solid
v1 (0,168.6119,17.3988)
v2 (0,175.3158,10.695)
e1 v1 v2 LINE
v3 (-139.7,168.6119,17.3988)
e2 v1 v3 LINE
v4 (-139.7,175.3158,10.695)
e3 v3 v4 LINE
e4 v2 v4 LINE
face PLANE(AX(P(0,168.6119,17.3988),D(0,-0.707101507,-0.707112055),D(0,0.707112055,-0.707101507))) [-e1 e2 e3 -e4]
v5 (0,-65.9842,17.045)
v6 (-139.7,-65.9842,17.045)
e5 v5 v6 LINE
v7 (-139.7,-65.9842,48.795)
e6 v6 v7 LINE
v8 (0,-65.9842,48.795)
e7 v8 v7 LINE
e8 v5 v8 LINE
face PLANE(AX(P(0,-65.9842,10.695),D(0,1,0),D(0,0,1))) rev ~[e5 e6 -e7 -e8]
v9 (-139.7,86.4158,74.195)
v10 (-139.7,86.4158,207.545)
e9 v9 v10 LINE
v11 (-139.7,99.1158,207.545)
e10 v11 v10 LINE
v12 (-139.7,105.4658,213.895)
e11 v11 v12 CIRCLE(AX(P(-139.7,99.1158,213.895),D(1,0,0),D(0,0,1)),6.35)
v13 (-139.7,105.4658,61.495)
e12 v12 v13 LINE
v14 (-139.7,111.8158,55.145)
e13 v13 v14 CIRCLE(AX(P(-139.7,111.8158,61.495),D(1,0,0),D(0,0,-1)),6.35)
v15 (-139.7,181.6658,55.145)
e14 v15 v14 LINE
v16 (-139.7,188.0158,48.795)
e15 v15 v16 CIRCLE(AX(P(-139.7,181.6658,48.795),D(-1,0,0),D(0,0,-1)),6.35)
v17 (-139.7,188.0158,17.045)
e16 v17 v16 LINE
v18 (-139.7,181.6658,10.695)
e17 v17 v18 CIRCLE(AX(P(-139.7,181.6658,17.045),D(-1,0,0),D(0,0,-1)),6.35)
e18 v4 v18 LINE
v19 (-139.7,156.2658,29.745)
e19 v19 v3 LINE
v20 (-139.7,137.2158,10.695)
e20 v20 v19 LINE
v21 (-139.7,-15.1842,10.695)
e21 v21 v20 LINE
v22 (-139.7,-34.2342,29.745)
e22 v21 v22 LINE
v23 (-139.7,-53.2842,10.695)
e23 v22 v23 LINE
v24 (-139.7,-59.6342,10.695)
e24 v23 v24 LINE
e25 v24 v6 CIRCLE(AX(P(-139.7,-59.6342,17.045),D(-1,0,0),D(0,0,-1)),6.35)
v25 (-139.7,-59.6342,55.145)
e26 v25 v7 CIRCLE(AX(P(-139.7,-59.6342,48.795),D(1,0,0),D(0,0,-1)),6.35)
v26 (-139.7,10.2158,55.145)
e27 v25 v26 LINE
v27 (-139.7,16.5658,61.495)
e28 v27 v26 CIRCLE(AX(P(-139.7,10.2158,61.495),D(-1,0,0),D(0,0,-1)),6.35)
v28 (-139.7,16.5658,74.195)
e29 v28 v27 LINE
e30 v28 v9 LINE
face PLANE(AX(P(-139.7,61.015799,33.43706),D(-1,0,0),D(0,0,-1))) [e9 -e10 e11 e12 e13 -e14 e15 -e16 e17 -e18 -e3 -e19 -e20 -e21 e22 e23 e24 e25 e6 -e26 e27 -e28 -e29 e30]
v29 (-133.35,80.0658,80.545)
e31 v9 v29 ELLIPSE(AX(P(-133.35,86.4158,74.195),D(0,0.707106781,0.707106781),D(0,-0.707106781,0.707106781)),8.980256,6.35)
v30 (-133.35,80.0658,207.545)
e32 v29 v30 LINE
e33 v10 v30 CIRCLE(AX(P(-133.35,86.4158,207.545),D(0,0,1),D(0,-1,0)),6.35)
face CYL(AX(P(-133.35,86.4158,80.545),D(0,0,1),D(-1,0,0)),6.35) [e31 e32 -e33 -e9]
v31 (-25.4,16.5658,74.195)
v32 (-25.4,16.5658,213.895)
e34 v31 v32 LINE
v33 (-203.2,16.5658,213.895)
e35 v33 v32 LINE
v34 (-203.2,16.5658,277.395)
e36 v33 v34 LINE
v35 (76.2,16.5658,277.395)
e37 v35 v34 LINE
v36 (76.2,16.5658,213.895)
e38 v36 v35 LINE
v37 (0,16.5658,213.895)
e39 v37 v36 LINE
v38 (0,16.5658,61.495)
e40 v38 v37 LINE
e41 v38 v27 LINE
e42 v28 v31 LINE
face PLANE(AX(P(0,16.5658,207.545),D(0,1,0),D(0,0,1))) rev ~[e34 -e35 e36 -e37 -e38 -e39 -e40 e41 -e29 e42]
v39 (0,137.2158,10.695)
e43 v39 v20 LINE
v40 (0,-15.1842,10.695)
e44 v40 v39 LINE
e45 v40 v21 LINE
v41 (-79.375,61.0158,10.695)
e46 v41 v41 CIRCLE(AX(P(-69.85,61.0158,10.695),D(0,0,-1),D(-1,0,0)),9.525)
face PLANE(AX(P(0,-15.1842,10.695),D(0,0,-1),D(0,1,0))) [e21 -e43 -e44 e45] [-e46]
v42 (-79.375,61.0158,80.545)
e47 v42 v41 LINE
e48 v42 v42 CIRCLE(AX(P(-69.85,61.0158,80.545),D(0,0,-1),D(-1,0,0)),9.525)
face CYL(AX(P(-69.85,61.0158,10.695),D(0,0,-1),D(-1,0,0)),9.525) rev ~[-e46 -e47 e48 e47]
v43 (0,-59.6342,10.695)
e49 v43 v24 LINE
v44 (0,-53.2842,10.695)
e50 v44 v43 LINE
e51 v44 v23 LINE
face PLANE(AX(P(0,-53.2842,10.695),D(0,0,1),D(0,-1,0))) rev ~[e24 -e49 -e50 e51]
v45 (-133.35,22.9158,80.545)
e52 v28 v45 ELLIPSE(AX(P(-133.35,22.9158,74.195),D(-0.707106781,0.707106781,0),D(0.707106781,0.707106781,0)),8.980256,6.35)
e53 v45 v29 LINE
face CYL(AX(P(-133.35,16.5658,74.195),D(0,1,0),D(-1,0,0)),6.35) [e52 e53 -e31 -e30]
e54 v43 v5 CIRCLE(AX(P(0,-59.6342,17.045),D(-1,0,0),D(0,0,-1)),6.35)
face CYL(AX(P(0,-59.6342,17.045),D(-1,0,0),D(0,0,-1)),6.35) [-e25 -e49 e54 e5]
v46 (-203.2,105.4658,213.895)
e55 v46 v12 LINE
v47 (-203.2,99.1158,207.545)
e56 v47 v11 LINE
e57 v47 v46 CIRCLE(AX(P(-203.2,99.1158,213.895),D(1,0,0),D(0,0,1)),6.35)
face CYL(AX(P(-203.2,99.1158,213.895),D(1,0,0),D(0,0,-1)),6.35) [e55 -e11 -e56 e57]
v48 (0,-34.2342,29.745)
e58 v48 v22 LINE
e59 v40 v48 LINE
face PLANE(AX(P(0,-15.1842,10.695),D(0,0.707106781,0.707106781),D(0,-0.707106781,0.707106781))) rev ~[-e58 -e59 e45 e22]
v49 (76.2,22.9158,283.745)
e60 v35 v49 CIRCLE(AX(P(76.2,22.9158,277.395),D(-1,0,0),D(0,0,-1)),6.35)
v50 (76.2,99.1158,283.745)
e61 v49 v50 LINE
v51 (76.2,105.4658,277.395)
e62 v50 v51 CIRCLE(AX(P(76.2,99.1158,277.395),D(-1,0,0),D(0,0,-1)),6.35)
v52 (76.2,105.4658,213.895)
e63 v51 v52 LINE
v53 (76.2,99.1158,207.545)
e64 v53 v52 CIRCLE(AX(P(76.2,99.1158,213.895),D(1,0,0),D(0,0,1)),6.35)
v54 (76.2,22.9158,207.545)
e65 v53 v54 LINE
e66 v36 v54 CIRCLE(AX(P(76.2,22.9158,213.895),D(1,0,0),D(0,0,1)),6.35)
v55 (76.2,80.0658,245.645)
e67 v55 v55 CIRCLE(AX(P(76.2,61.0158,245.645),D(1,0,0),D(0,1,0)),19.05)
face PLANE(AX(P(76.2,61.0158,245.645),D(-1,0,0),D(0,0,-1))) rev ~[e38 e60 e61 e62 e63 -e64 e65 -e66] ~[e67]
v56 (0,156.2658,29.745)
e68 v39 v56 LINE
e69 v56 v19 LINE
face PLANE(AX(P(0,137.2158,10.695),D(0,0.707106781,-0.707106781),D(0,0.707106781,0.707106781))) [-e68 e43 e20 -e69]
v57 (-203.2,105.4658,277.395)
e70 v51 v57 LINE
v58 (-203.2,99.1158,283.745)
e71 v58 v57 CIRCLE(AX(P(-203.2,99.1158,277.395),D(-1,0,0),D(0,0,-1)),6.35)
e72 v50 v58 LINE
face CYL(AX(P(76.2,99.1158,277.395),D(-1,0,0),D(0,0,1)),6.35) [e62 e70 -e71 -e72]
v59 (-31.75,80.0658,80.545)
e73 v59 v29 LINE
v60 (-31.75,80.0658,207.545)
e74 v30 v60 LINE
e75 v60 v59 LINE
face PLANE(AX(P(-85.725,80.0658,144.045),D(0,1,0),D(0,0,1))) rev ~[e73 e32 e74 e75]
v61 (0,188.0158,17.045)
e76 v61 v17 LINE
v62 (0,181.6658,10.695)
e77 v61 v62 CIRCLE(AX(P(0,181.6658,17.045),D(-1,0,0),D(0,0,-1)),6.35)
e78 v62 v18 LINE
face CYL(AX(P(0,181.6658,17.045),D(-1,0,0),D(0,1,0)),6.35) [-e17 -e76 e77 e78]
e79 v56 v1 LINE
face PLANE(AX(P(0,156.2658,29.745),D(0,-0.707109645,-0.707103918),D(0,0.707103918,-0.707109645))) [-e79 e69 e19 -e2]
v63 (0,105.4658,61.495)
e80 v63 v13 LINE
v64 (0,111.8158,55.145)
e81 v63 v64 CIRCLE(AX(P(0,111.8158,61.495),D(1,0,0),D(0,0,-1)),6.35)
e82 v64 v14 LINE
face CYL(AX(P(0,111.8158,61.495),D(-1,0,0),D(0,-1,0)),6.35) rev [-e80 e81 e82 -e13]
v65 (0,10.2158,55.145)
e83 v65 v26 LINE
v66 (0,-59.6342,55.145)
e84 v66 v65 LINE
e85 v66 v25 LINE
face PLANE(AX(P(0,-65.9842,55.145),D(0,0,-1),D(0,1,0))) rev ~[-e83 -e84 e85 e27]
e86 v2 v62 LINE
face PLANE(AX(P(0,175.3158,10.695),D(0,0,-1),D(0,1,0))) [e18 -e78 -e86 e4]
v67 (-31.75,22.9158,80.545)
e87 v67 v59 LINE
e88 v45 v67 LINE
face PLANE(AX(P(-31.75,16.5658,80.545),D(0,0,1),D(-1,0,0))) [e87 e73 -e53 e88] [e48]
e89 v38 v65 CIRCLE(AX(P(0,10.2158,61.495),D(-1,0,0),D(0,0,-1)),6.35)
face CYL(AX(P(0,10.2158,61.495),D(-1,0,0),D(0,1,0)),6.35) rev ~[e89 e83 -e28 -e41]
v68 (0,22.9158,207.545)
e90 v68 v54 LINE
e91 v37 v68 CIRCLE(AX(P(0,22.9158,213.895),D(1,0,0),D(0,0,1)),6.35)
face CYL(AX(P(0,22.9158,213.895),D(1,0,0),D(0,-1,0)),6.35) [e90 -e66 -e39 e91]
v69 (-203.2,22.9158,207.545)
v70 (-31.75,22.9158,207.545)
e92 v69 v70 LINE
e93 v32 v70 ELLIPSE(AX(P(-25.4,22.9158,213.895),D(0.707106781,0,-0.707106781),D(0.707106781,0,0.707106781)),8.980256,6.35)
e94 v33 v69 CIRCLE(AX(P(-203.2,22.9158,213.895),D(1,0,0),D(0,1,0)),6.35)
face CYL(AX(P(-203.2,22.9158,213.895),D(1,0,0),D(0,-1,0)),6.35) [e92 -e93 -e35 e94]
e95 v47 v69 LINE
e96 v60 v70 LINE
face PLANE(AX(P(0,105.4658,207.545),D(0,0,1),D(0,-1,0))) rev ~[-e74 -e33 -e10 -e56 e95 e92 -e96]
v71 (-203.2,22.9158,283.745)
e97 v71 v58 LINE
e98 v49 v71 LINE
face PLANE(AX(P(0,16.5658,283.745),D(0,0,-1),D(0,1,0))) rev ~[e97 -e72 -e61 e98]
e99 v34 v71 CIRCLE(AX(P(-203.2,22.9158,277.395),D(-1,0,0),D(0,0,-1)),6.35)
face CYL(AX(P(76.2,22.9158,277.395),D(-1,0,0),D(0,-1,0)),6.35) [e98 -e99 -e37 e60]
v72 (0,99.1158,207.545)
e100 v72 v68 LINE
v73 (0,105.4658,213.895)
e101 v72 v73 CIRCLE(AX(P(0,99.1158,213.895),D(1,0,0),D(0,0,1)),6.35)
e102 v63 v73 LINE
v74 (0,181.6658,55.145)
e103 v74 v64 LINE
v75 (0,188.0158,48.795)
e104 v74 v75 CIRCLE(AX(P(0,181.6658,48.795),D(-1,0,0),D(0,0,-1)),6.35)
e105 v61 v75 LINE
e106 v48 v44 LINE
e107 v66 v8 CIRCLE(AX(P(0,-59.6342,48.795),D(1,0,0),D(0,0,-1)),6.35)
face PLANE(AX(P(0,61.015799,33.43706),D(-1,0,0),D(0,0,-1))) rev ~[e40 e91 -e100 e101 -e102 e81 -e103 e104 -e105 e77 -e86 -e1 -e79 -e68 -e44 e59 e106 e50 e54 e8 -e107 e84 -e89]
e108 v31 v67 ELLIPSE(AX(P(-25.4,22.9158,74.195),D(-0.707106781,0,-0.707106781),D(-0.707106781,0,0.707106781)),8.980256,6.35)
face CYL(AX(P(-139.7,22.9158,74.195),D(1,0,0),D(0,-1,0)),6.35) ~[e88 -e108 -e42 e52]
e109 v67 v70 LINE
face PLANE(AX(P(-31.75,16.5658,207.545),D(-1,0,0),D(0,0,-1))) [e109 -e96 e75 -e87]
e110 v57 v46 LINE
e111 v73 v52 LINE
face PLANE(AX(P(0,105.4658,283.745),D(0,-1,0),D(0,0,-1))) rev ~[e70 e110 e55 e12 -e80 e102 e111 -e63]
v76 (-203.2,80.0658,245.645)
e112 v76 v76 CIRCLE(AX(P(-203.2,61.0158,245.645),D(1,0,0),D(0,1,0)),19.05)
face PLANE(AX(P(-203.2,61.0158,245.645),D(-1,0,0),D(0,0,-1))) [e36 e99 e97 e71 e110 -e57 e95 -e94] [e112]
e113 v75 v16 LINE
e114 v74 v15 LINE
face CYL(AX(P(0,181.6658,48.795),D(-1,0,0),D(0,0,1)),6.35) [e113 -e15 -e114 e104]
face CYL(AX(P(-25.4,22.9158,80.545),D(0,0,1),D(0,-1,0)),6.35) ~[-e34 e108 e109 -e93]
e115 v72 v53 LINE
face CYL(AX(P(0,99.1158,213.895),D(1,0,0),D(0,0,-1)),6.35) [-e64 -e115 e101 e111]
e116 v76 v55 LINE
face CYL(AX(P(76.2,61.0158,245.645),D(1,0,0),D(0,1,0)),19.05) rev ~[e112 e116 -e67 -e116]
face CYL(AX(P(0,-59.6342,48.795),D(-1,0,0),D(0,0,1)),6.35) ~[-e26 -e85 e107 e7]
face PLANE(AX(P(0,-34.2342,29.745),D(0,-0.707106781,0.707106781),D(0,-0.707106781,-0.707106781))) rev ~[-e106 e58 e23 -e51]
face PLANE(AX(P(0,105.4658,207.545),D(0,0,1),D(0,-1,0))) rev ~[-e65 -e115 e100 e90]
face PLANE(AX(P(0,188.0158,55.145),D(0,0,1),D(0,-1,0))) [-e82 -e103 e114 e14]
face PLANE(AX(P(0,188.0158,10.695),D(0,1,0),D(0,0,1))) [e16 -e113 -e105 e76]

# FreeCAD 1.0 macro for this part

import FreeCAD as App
import Part
import Sketcher
from FreeCAD import Vector
Q = App.Units.Quantity


def edges_at(feature, points):
    """Names of the edges that pass closest to the given points."""
    edges = feature.Shape.Edges
    near = lambda p: min(range(len(edges)), key=lambda i: edges[i].distToShape(Part.Vertex(*p))[0])
    return sorted({f"Edge{near(p) + 1}" for p in points})

doc = App.newDocument("Part")
body = doc.addObject("PartDesign::Body", "Body")

sketch1 = body.newObject("Sketcher::SketchObject", "Sketch")
sketch1.AttachmentSupport = (doc.getObject("YZ_Plane"), [""])
sketch1.MapMode = "FlatFace"
sketch1.addGeometry(Part.LineSegment(Vector(188.0158, 55.145, 0), Vector(-65.9842, 55.145, 0)), False)
sketch1.addGeometry(Part.LineSegment(Vector(-65.9842, 55.145, 0), Vector(-65.9842, 10.695, 0)), False)
sketch1.addGeometry(Part.LineSegment(Vector(-65.9842, 10.695, 0), Vector(-53.2842, 10.695, 0)), False)
sketch1.addGeometry(Part.LineSegment(Vector(-53.2842, 10.695, 0), Vector(-34.2342, 29.745, 0)), False)
sketch1.addGeometry(Part.LineSegment(Vector(-34.2342, 29.745, 0), Vector(-15.1842, 10.695, 0)), False)
sketch1.addGeometry(Part.LineSegment(Vector(-15.1842, 10.695, 0), Vector(137.2158, 10.695, 0)), False)
sketch1.addGeometry(Part.LineSegment(Vector(137.2158, 10.695, 0), Vector(156.2658, 29.745, 0)), False)
sketch1.addGeometry(Part.LineSegment(Vector(156.2658, 29.745, 0), Vector(168.6119, 17.3988, 0)), False)
sketch1.addGeometry(Part.LineSegment(Vector(168.6119, 17.3988, 0), Vector(175.3158, 10.695, 0)), False)
sketch1.addGeometry(Part.LineSegment(Vector(175.3158, 10.695, 0), Vector(188.0158, 10.695, 0)), False)
sketch1.addGeometry(Part.LineSegment(Vector(188.0158, 10.695, 0), Vector(188.0158, 55.145, 0)), False)
sketch1.addConstraint(Sketcher.Constraint("Coincident", 0, 2, 1, 1))
sketch1.addConstraint(Sketcher.Constraint("Coincident", 1, 2, 2, 1))
sketch1.addConstraint(Sketcher.Constraint("Coincident", 2, 2, 3, 1))
sketch1.addConstraint(Sketcher.Constraint("Coincident", 3, 2, 4, 1))
sketch1.addConstraint(Sketcher.Constraint("Coincident", 4, 2, 5, 1))
sketch1.addConstraint(Sketcher.Constraint("Coincident", 5, 2, 6, 1))
sketch1.addConstraint(Sketcher.Constraint("Coincident", 6, 2, 7, 1))
sketch1.addConstraint(Sketcher.Constraint("Coincident", 7, 2, 8, 1))
sketch1.addConstraint(Sketcher.Constraint("Coincident", 8, 2, 9, 1))
sketch1.addConstraint(Sketcher.Constraint("Coincident", 9, 2, 10, 1))
sketch1.addConstraint(Sketcher.Constraint("Coincident", 10, 2, 0, 1))
sketch1.addConstraint(Sketcher.Constraint("Horizontal", 0))
sketch1.addConstraint(Sketcher.Constraint("Vertical", 1))
sketch1.addConstraint(Sketcher.Constraint("Horizontal", 2))
sketch1.addConstraint(Sketcher.Constraint("Horizontal", 5))
sketch1.addConstraint(Sketcher.Constraint("Horizontal", 9))
sketch1.addConstraint(Sketcher.Constraint("Vertical", 10))
sketch1.addConstraint(Sketcher.Constraint("Perpendicular", 3, 4))
sketch1.addConstraint(Sketcher.Constraint("Perpendicular", 4, 6))
sketch1.addConstraint(Sketcher.Constraint("Perpendicular", 6, 7))
sketch1.addConstraint(Sketcher.Constraint("Parallel", 7, 8))
sketch1.addConstraint(Sketcher.Constraint("Horizontal", 2, 2, 4, 2))
sketch1.addConstraint(Sketcher.Constraint("Horizontal", 3, 2, 6, 2))
sketch1.addConstraint(Sketcher.Constraint("Horizontal", 5, 2, 8, 2))
sketch1.addConstraint(Sketcher.Constraint("Equal", 2, 9))
sketch1.addConstraint(Sketcher.Constraint("Equal", 3, 4))
sketch1.addConstraint(Sketcher.Constraint("DistanceX", 0, 2, 0, 1, Q("10 in")))
sketch1.addConstraint(Sketcher.Constraint("DistanceX", 5, 1, 5, 2, Q("6 in")))
sketch1.addConstraint(Sketcher.Constraint("DistanceX", 2, 1, 2, 2, Q("0.5 in")))
sketch1.addConstraint(Sketcher.Constraint("DistanceY", 3, 2, 0, 2, Q("1 in")))
sketch1.addConstraint(Sketcher.Constraint("DistanceY", -1, 1, 7, 2, Q("0.685 in")))
sketch1.addConstraint(Sketcher.Constraint("Distance", 7, Q("0.6874 in")))
sketch1.addConstraint(Sketcher.Constraint("DistanceX", 0, 2, -1, 1, Q("2.5978 in")))
pad1 = body.newObject("PartDesign::Pad", "Pad")
pad1.Profile = sketch1
pad1.Length = Q("5.5 in")
pad1.Reversed = True

sketch2 = body.newObject("Sketcher::SketchObject", "Sketch001")
sketch2.AttachmentSupport = (doc.getObject("YZ_Plane"), [""])
sketch2.MapMode = "FlatFace"
sketch2.addGeometry(Part.LineSegment(Vector(105.4658, 207.545, 0), Vector(16.5658, 207.545, 0)), False)
sketch2.addGeometry(Part.LineSegment(Vector(16.5658, 207.545, 0), Vector(16.5658, 55.145, 0)), False)
sketch2.addGeometry(Part.LineSegment(Vector(16.5658, 55.145, 0), Vector(105.4658, 55.145, 0)), False)
sketch2.addGeometry(Part.LineSegment(Vector(105.4658, 55.145, 0), Vector(105.4658, 207.545, 0)), False)
sketch2.addConstraint(Sketcher.Constraint("Coincident", 0, 2, 1, 1))
sketch2.addConstraint(Sketcher.Constraint("Coincident", 1, 2, 2, 1))
sketch2.addConstraint(Sketcher.Constraint("Coincident", 2, 2, 3, 1))
sketch2.addConstraint(Sketcher.Constraint("Coincident", 3, 2, 0, 1))
sketch2.addConstraint(Sketcher.Constraint("Horizontal", 0))
sketch2.addConstraint(Sketcher.Constraint("Vertical", 1))
sketch2.addConstraint(Sketcher.Constraint("Horizontal", 2))
sketch2.addConstraint(Sketcher.Constraint("Vertical", 3))
sketch2.addConstraint(Sketcher.Constraint("DistanceY", 1, 2, 1, 1, Q("6 in")))
sketch2.addConstraint(Sketcher.Constraint("DistanceX", 0, 2, 0, 1, Q("3.5 in")))
sketch2.addConstraint(Sketcher.Constraint("DistanceX", -1, 1, 0, 2, Q("0.6522 in")))
sketch2.addConstraint(Sketcher.Constraint("DistanceY", -1, 1, 0, 2, 207.545))
pad2 = body.newObject("PartDesign::Pad", "Pad001")
pad2.Profile = sketch2
pad2.Length = Q("5.5 in")
pad2.Reversed = True

sketch3 = body.newObject("Sketcher::SketchObject", "Sketch002")
sketch3.AttachmentSupport = (doc.getObject("YZ_Plane"), [""])
sketch3.MapMode = "FlatFace"
sketch3.addGeometry(Part.LineSegment(Vector(16.5658, 283.745, 0), Vector(16.5658, 207.545, 0)), False)
sketch3.addGeometry(Part.LineSegment(Vector(16.5658, 207.545, 0), Vector(105.4658, 207.545, 0)), False)
sketch3.addGeometry(Part.LineSegment(Vector(105.4658, 207.545, 0), Vector(105.4658, 283.745, 0)), False)
sketch3.addGeometry(Part.LineSegment(Vector(105.4658, 283.745, 0), Vector(16.5658, 283.745, 0)), False)
sketch3.addConstraint(Sketcher.Constraint("Coincident", 0, 2, 1, 1))
sketch3.addConstraint(Sketcher.Constraint("Coincident", 1, 2, 2, 1))
sketch3.addConstraint(Sketcher.Constraint("Coincident", 2, 2, 3, 1))
sketch3.addConstraint(Sketcher.Constraint("Coincident", 3, 2, 0, 1))
sketch3.addConstraint(Sketcher.Constraint("Vertical", 0))
sketch3.addConstraint(Sketcher.Constraint("Horizontal", 1))
sketch3.addConstraint(Sketcher.Constraint("Vertical", 2))
sketch3.addConstraint(Sketcher.Constraint("Horizontal", 3))
sketch3.addConstraint(Sketcher.Constraint("DistanceY", 0, 2, 0, 1, Q("3 in")))
sketch3.addConstraint(Sketcher.Constraint("DistanceX", 1, 1, 1, 2, Q("3.5 in")))
sketch3.addConstraint(Sketcher.Constraint("DistanceX", -1, 1, 0, 2, Q("0.6522 in")))
sketch3.addConstraint(Sketcher.Constraint("DistanceY", -1, 1, 0, 2, 207.545))
pad3 = body.newObject("PartDesign::Pad", "Pad002")
pad3.Profile = sketch3
pad3.Type = "TwoLengths"
pad3.Length = Q("8 in")
pad3.Length2 = Q("3 in")
pad3.Reversed = True

sketch4 = body.newObject("Sketcher::SketchObject", "Sketch003")
sketch4.AttachmentSupport = (doc.getObject("XZ_Plane"), [""])
sketch4.MapMode = "FlatFace"
sketch4.AttachmentOffset = App.Placement(Vector(0, 0, -0.6521969 * 25.4), App.Rotation())
sketch4.addGeometry(Part.LineSegment(Vector(-31.75, 80.545, 0), Vector(-31.75, 207.545, 0)), False)
sketch4.addGeometry(Part.LineSegment(Vector(-31.75, 207.545, 0), Vector(-139.7, 207.545, 0)), False)
sketch4.addGeometry(Part.LineSegment(Vector(-139.7, 207.545, 0), Vector(-139.7, 80.545, 0)), False)
sketch4.addGeometry(Part.LineSegment(Vector(-139.7, 80.545, 0), Vector(-31.75, 80.545, 0)), False)
sketch4.addConstraint(Sketcher.Constraint("Coincident", 0, 2, 1, 1))
sketch4.addConstraint(Sketcher.Constraint("Coincident", 1, 2, 2, 1))
sketch4.addConstraint(Sketcher.Constraint("Coincident", 2, 2, 3, 1))
sketch4.addConstraint(Sketcher.Constraint("Coincident", 3, 2, 0, 1))
sketch4.addConstraint(Sketcher.Constraint("Vertical", 0))
sketch4.addConstraint(Sketcher.Constraint("Horizontal", 1))
sketch4.addConstraint(Sketcher.Constraint("Vertical", 2))
sketch4.addConstraint(Sketcher.Constraint("Horizontal", 3))
sketch4.addConstraint(Sketcher.Constraint("DistanceY", 0, 1, 0, 2, Q("5 in")))
sketch4.addConstraint(Sketcher.Constraint("DistanceX", 1, 2, 1, 1, Q("4.25 in")))
sketch4.addConstraint(Sketcher.Constraint("DistanceX", 1, 2, -1, 1, Q("5.5 in")))
sketch4.addConstraint(Sketcher.Constraint("DistanceY", -1, 1, 0, 2, 207.545))
pocket1 = body.newObject("PartDesign::Pocket", "Pocket")
pocket1.Profile = sketch4
pocket1.Type = "TwoLengths"
pocket1.Length = Q("2.5 in")
pocket1.Length2 = 83.55

sketch5 = body.newObject("Sketcher::SketchObject", "Sketch004")
sketch5.AttachmentSupport = (doc.getObject("YZ_Plane"), [""])
sketch5.MapMode = "FlatFace"
sketch5.AttachmentOffset = App.Placement(Vector(0, 0, 3 * 25.4), App.Rotation())
sketch5.addGeometry(Part.Circle(Vector(61.0158, 245.645, 0), Vector(0, 0, 1), 19.05), False)
sketch5.addConstraint(Sketcher.Constraint("Diameter", 0, Q("1.5 in")))
sketch5.addConstraint(Sketcher.Constraint("DistanceX", -1, 1, 0, 3, Q("2.4022 in")))
sketch5.addConstraint(Sketcher.Constraint("DistanceY", -1, 1, 0, 3, 245.645))
pocket2 = body.newObject("PartDesign::Pocket", "Pocket001")
pocket2.Profile = sketch5
pocket2.Type = "ThroughAll"
pocket2.Midplane = True
doc.recompute()

fillet = body.newObject("PartDesign::Fillet", "Fillet")
fillet.Base = (pocket2, edges_at(pocket2, [
    (-31.75, 16.566, 144.045),
    (-85.725, 16.566, 80.545),
    (-69.85, 16.566, 55.145),
    (-117.475, 16.566, 207.545),
    (38.1, 16.566, 207.545),
    (-139.7, 80.066, 144.045),
    (-139.7, 48.316, 80.545),
    (-69.85, -65.984, 55.145),
    (38.1, 105.466, 207.545),
    (-63.5, 105.466, 283.745),
    (-63.5, 16.566, 283.745),
    (-171.45, 105.466, 207.545),
    (-69.85, 105.466, 55.145),
    (-69.85, 188.016, 55.145),
    (-69.85, 188.016, 10.695),
    (-69.85, -65.984, 10.695),
]))
fillet.Radius = Q("0.25 in")

sketch6 = body.newObject("Sketcher::SketchObject", "Sketch005")
sketch6.AttachmentSupport = (doc.getObject("XY_Plane"), [""])
sketch6.MapMode = "FlatFace"
sketch6.AttachmentOffset = App.Placement(Vector(0, 0, 10.695), App.Rotation())
sketch6.addGeometry(Part.Circle(Vector(-69.85, 61.0158, 0), Vector(0, 0, 1), 9.525), False)
sketch6.addConstraint(Sketcher.Constraint("Diameter", 0, Q("0.75 in")))
sketch6.addConstraint(Sketcher.Constraint("DistanceX", 0, 3, -1, 1, Q("2.75 in")))
sketch6.addConstraint(Sketcher.Constraint("DistanceY", -1, 1, 0, 3, Q("2.4022 in")))
pocket3 = body.newObject("PartDesign::Pocket", "Pocket002")
pocket3.Profile = sketch6
pocket3.Type = "UpToFirst"
pocket3.Reversed = True

doc.recompute()
